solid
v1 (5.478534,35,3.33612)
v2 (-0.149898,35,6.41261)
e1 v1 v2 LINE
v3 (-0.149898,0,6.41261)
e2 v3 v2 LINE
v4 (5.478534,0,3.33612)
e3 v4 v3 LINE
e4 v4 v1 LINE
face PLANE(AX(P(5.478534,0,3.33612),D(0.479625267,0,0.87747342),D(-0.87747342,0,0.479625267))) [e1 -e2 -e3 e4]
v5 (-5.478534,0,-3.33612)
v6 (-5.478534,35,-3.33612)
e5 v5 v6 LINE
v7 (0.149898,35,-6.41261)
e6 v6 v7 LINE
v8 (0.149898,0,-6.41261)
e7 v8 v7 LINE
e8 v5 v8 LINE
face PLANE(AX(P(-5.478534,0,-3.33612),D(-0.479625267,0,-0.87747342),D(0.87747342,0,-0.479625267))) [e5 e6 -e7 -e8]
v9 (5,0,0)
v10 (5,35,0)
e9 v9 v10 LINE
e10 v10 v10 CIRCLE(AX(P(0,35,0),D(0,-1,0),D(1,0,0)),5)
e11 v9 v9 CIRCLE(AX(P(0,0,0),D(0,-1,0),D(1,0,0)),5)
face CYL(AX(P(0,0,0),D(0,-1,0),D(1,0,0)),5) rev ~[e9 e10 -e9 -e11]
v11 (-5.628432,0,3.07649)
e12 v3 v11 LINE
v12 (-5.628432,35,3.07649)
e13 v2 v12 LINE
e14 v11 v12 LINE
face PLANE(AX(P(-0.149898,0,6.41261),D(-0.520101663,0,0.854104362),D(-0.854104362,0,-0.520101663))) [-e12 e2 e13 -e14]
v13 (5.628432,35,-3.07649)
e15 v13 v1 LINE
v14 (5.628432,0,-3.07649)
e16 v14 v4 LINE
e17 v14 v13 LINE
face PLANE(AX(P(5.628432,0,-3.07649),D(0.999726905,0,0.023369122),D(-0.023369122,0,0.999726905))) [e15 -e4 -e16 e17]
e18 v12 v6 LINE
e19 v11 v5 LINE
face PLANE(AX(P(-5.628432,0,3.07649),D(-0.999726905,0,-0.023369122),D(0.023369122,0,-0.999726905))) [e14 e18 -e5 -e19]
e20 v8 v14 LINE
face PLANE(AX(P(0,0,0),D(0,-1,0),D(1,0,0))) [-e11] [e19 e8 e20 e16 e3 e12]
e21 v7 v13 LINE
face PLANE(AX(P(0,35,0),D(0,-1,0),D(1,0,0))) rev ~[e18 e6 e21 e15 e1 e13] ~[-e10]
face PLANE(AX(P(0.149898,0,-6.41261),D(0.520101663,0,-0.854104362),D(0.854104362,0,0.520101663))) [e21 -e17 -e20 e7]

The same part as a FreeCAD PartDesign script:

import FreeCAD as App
import Part
import Sketcher
from FreeCAD import Vector
Q = App.Units.Quantity


def add_polygon(sketch, points):
    """Adds a closed chain of lines whose ends are joined by coincident constraints."""
    first, n = sketch.GeometryCount, len(points)
    for a, b in zip(points, points[1:] + points[:1]):
        sketch.addGeometry(Part.LineSegment(App.Vector(*a, 0), App.Vector(*b, 0)), False)
    for i in range(n):
        sketch.addConstraint(Sketcher.Constraint("Coincident", first + i, 2, first + (i + 1) % n, 1))

doc = App.newDocument("Part")
body = doc.addObject("PartDesign::Body", "Body")

# Sketch on XZ plane
sketch1 = doc.addObject("Sketcher::SketchObject", "Sketch")
body.addObject(sketch1)
sketch1.AttachmentSupport = (doc.XZ_Plane, [""])
sketch1.MapMode = "FlatFace"
add_polygon(sketch1, [(0, 6), (-6, 3), (-5, -3), (0, -6), (6, -3), (5, 3)])  # lines 0-5
sketch1.addConstraint([
    Sketcher.Constraint("Symmetric", 0, 2, 3, 2, -1, 1),
    Sketcher.Constraint("Symmetric", 1, 2, 4, 2, -1, 1),
    Sketcher.Constraint("Symmetric", 2, 2, 5, 2, -1, 1),
    Sketcher.Constraint("Equal", 0, 1),
    Sketcher.Constraint("Equal", 1, 2),
    Sketcher.Constraint("DistanceX", 0, 2, 1, 2, Q("0.149898 mm")),
    Sketcher.Constraint("DistanceY", 2, 2, 0, 2, Q("9.4891 mm")),
    Sketcher.Constraint("Distance", 0, Q("6.414361 mm")),
    Sketcher.Constraint("DistanceY", -1, 1, 0, 2, Q("3.07649 mm")),
])
pad1 = doc.addObject("PartDesign::Pad", "Pad")
body.addObject(pad1)
pad1.Profile = sketch1
pad1.Length = 35
pad1.Reversed = True

# Sketch on XZ plane
sketch2 = doc.addObject("Sketcher::SketchObject", "Sketch001")
body.addObject(sketch2)
sketch2.AttachmentSupport = (doc.XZ_Plane, [""])
sketch2.MapMode = "FlatFace"
sketch2.addGeometry(Part.Circle(Vector(0, 0, 0), Vector(0, 0, 1), 5), False)
sketch2.addConstraint([
    Sketcher.Constraint("Coincident", 0, 3, -1, 1),
    Sketcher.Constraint("Diameter", 0, Q("10 mm")),
])
pocket1 = doc.addObject("PartDesign::Pocket", "Pocket")
body.addObject(pocket1)
pocket1.Profile = sketch2
pocket1.Length = 35

doc.recompute()
